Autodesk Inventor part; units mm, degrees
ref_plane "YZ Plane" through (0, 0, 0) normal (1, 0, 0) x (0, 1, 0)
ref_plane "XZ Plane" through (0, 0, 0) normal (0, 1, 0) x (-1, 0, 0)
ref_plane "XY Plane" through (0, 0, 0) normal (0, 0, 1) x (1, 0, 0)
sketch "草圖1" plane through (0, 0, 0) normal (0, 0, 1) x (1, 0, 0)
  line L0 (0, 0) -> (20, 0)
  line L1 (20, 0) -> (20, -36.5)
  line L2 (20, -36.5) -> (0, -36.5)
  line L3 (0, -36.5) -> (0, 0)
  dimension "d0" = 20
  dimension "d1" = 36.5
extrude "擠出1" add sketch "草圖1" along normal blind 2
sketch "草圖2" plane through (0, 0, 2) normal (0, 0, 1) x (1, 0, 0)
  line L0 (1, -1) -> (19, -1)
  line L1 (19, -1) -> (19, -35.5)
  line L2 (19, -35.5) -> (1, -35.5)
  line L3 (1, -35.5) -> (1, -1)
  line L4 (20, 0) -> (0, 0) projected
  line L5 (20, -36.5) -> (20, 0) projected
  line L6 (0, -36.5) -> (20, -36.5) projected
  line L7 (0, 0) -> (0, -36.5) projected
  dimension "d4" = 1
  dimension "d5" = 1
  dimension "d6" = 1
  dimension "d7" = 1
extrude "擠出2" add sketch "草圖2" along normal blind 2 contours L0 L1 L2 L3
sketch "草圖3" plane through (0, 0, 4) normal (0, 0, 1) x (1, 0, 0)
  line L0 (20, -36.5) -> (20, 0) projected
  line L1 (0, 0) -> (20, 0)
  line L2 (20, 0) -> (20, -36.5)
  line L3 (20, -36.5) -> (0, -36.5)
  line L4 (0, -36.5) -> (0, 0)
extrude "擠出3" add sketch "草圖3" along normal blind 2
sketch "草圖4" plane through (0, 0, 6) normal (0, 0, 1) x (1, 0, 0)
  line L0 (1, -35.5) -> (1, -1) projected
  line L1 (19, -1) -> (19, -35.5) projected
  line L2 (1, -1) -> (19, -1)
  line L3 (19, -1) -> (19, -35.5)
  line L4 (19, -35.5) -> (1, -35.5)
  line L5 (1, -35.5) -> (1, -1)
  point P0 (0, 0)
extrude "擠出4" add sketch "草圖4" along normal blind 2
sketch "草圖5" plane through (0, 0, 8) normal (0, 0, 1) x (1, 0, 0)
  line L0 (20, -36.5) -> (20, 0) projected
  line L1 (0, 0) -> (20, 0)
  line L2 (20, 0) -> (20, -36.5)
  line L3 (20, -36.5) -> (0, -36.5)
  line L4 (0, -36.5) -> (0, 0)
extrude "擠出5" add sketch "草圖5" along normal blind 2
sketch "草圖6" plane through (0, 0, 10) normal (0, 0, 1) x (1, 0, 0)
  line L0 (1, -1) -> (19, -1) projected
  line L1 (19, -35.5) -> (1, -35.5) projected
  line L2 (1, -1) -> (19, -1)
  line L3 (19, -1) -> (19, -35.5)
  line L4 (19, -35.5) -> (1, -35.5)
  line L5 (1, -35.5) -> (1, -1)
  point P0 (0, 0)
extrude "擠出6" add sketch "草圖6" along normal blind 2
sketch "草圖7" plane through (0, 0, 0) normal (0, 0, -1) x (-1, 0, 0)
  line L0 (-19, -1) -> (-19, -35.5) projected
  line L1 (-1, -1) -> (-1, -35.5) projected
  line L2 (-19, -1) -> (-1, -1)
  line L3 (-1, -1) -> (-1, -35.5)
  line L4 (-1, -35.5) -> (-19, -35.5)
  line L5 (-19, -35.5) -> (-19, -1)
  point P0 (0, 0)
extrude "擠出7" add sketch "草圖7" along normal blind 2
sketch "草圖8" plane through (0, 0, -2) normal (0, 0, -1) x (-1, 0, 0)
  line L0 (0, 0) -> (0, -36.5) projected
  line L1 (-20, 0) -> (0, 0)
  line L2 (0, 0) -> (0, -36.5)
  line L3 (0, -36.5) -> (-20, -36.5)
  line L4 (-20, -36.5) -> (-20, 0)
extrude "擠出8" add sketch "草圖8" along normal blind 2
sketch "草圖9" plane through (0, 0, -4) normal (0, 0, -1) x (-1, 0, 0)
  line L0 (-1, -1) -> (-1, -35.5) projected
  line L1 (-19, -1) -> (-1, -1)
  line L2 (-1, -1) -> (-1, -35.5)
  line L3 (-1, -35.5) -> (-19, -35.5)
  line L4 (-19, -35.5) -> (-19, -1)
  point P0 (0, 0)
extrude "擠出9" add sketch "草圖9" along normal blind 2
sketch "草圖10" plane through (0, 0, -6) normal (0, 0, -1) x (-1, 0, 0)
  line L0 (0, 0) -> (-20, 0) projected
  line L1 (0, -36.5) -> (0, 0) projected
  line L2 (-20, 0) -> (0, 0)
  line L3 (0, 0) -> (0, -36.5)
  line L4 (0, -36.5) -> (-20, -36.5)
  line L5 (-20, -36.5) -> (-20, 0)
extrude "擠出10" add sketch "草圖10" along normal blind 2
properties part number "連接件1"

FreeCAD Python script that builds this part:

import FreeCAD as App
import Part
import Sketcher

V = App.Vector
Q = App.Units.Quantity

doc = App.newDocument("Part")
body = doc.addObject("PartDesign::Body", "Body")

sketch1 = body.newObject("Sketcher::SketchObject", "Sketch")
sketch1.AttachmentSupport = (doc.getObject("XY_Plane"), [""])
sketch1.MapMode = "FlatFace"
sketch1.addGeometry([
    Part.LineSegment(V(20, 0, 0), V(0, 0, 0)),
    Part.LineSegment(V(0, 0, 0), V(0, -36, 0)),
    Part.LineSegment(V(0, -36, 0), V(20, -36, 0)),
    Part.LineSegment(V(20, -36, 0), V(20, 0, 0)),
], False)
sketch1.addConstraint([
    Sketcher.Constraint("Coincident", 0, 2, 1, 1),
    Sketcher.Constraint("Coincident", 1, 2, 2, 1),
    Sketcher.Constraint("Coincident", 2, 2, 3, 1),
    Sketcher.Constraint("Coincident", 3, 2, 0, 1),
    Sketcher.Constraint("Horizontal", 0),
    Sketcher.Constraint("Vertical", 1),
    Sketcher.Constraint("Horizontal", 2),
    Sketcher.Constraint("Vertical", 3),
    Sketcher.Constraint("Coincident", 0, 2, -1, 1),
    Sketcher.Constraint("DistanceX", 0, 2, 0, 1, Q("20 mm")),
    Sketcher.Constraint("DistanceY", 1, 2, 1, 1, Q("36.5 mm")),
])
pad1 = body.newObject("PartDesign::Pad", "Pad")
pad1.Profile = sketch1
pad1.Length = 2

sketch2 = body.newObject("Sketcher::SketchObject", "Sketch001")
sketch2.AttachmentSupport = (doc.getObject("XY_Plane"), [""])
sketch2.MapMode = "FlatFace"
sketch2.AttachmentOffset = App.Placement(V(0, 0, 2), App.Rotation())
sketch2.addGeometry([
    Part.LineSegment(V(19, -1, 0), V(1, -1, 0)),
    Part.LineSegment(V(1, -1, 0), V(1, -36, 0)),
    Part.LineSegment(V(1, -36, 0), V(19, -36, 0)),
    Part.LineSegment(V(19, -36, 0), V(19, -1, 0)),
], False)
sketch2.addConstraint([
    Sketcher.Constraint("Coincident", 0, 2, 1, 1),
    Sketcher.Constraint("Coincident", 1, 2, 2, 1),
    Sketcher.Constraint("Coincident", 2, 2, 3, 1),
    Sketcher.Constraint("Coincident", 3, 2, 0, 1),
    Sketcher.Constraint("Horizontal", 0),
    Sketcher.Constraint("Vertical", 1),
    Sketcher.Constraint("Horizontal", 2),
    Sketcher.Constraint("Vertical", 3),
    Sketcher.Constraint("DistanceX", -1, 1, 0, 2, Q("1 mm")),
    Sketcher.Constraint("DistanceY", 0, 2, -1, 1, Q("1 mm")),
    Sketcher.Constraint("DistanceX", 0, 2, 0, 1, Q("18 mm")),
    Sketcher.Constraint("DistanceY", 1, 2, 1, 1, Q("34.5 mm")),
])
pad2 = body.newObject("PartDesign::Pad", "Pad001")
pad2.Profile = sketch2
pad2.Length = 2

sketch3 = body.newObject("Sketcher::SketchObject", "Sketch002")
sketch3.AttachmentSupport = (doc.getObject("XY_Plane"), [""])
sketch3.MapMode = "FlatFace"
sketch3.AttachmentOffset = App.Placement(V(0, 0, 4), App.Rotation())
sketch3.addGeometry([
    Part.LineSegment(V(0, -36, 0), V(20, -36, 0)),
    Part.LineSegment(V(20, -36, 0), V(20, 0, 0)),
    Part.LineSegment(V(20, 0, 0), V(0, 0, 0)),
    Part.LineSegment(V(0, 0, 0), V(0, -36, 0)),
], False)
sketch3.addConstraint([
    Sketcher.Constraint("Coincident", 0, 2, 1, 1),
    Sketcher.Constraint("Coincident", 1, 2, 2, 1),
    Sketcher.Constraint("Coincident", 2, 2, 3, 1),
    Sketcher.Constraint("Coincident", 3, 2, 0, 1),
    Sketcher.Constraint("Horizontal", 0),
    Sketcher.Constraint("Vertical", 1),
    Sketcher.Constraint("Horizontal", 2),
    Sketcher.Constraint("Vertical", 3),
    Sketcher.Constraint("Coincident", 2, 2, -1, 1),
    Sketcher.Constraint("DistanceX", 0, 1, 0, 2, Q("20 mm")),
    Sketcher.Constraint("DistanceY", 1, 1, 1, 2, Q("36.5 mm")),
])
pad3 = body.newObject("PartDesign::Pad", "Pad002")
pad3.Profile = sketch3
pad3.Length = 2

sketch4 = body.newObject("Sketcher::SketchObject", "Sketch003")
sketch4.AttachmentSupport = (doc.getObject("XY_Plane"), [""])
sketch4.MapMode = "FlatFace"
sketch4.AttachmentOffset = App.Placement(V(0, 0, 6), App.Rotation())
sketch4.addGeometry([
    Part.LineSegment(V(1, -1, 0), V(1, -36, 0)),
    Part.LineSegment(V(1, -36, 0), V(19, -36, 0)),
    Part.LineSegment(V(19, -36, 0), V(19, -1, 0)),
    Part.LineSegment(V(19, -1, 0), V(1, -1, 0)),
], False)
sketch4.addConstraint([
    Sketcher.Constraint("Coincident", 0, 2, 1, 1),
    Sketcher.Constraint("Coincident", 1, 2, 2, 1),
    Sketcher.Constraint("Coincident", 2, 2, 3, 1),
    Sketcher.Constraint("Coincident", 3, 2, 0, 1),
    Sketcher.Constraint("Vertical", 0),
    Sketcher.Constraint("Horizontal", 1),
    Sketcher.Constraint("Vertical", 2),
    Sketcher.Constraint("Horizontal", 3),
    Sketcher.Constraint("DistanceX", 1, 1, 1, 2, Q("18 mm")),
    Sketcher.Constraint("DistanceY", 0, 2, 0, 1, Q("34.5 mm")),
    Sketcher.Constraint("DistanceX", -1, 1, 0, 2, Q("1 mm")),
    Sketcher.Constraint("DistanceY", 2, 2, -1, 1, Q("1 mm")),
])
pad4 = body.newObject("PartDesign::Pad", "Pad003")
pad4.Profile = sketch4
pad4.Length = 2

sketch5 = body.newObject("Sketcher::SketchObject", "Sketch004")
sketch5.AttachmentSupport = (doc.getObject("XY_Plane"), [""])
sketch5.MapMode = "FlatFace"
sketch5.AttachmentOffset = App.Placement(V(0, 0, 8), App.Rotation())
sketch5.addGeometry([
    Part.LineSegment(V(0, -36, 0), V(20, -36, 0)),
    Part.LineSegment(V(20, -36, 0), V(20, 0, 0)),
    Part.LineSegment(V(20, 0, 0), V(0, 0, 0)),
    Part.LineSegment(V(0, 0, 0), V(0, -36, 0)),
], False)
sketch5.addConstraint([
    Sketcher.Constraint("Coincident", 0, 2, 1, 1),
    Sketcher.Constraint("Coincident", 1, 2, 2, 1),
    Sketcher.Constraint("Coincident", 2, 2, 3, 1),
    Sketcher.Constraint("Coincident", 3, 2, 0, 1),
    Sketcher.Constraint("Horizontal", 0),
    Sketcher.Constraint("Vertical", 1),
    Sketcher.Constraint("Horizontal", 2),
    Sketcher.Constraint("Vertical", 3),
    Sketcher.Constraint("Coincident", 2, 2, -1, 1),
    Sketcher.Constraint("DistanceX", 0, 1, 0, 2, Q("20 mm")),
    Sketcher.Constraint("DistanceY", 1, 1, 1, 2, Q("36.5 mm")),
])
pad5 = body.newObject("PartDesign::Pad", "Pad004")
pad5.Profile = sketch5
pad5.Length = 2

sketch6 = body.newObject("Sketcher::SketchObject", "Sketch005")
sketch6.AttachmentSupport = (doc.getObject("XY_Plane"), [""])
sketch6.MapMode = "FlatFace"
sketch6.AttachmentOffset = App.Placement(V(0, 0, 10), App.Rotation())
sketch6.addGeometry([
    Part.LineSegment(V(19, -1, 0), V(1, -1, 0)),
    Part.LineSegment(V(1, -1, 0), V(1, -36, 0)),
    Part.LineSegment(V(1, -36, 0), V(19, -36, 0)),
    Part.LineSegment(V(19, -36, 0), V(19, -1, 0)),
], False)
sketch6.addConstraint([
    Sketcher.Constraint("Coincident", 0, 2, 1, 1),
    Sketcher.Constraint("Coincident", 1, 2, 2, 1),
    Sketcher.Constraint("Coincident", 2, 2, 3, 1),
    Sketcher.Constraint("Coincident", 3, 2, 0, 1),
    Sketcher.Constraint("Horizontal", 0),
    Sketcher.Constraint("Vertical", 1),
    Sketcher.Constraint("Horizontal", 2),
    Sketcher.Constraint("Vertical", 3),
    Sketcher.Constraint("DistanceX", 0, 2, 0, 1, Q("18 mm")),
    Sketcher.Constraint("DistanceY", 1, 2, 1, 1, Q("34.5 mm")),
    Sketcher.Constraint("DistanceX", -1, 1, 0, 2, Q("1 mm")),
    Sketcher.Constraint("DistanceY", 0, 2, -1, 1, Q("1 mm")),
])
pad6 = body.newObject("PartDesign::Pad", "Pad005")
pad6.Profile = sketch6
pad6.Length = 2

sketch7 = body.newObject("Sketcher::SketchObject", "Sketch006")
sketch7.AttachmentSupport = (doc.getObject("XY_Plane"), [""])
sketch7.MapMode = "FlatFace"
sketch7.addGeometry([
    Part.LineSegment(V(1, -1, 0), V(19, -1, 0)),
    Part.LineSegment(V(19, -1, 0), V(19, -36, 0)),
    Part.LineSegment(V(19, -36, 0), V(1, -36, 0)),
    Part.LineSegment(V(1, -36, 0), V(1, -1, 0)),
], False)
sketch7.addConstraint([
    Sketcher.Constraint("Coincident", 0, 2, 1, 1),
    Sketcher.Constraint("Coincident", 1, 2, 2, 1),
    Sketcher.Constraint("Coincident", 2, 2, 3, 1),
    Sketcher.Constraint("Coincident", 3, 2, 0, 1),
    Sketcher.Constraint("Horizontal", 0),
    Sketcher.Constraint("Vertical", 1),
    Sketcher.Constraint("Horizontal", 2),
    Sketcher.Constraint("Vertical", 3),
    Sketcher.Constraint("DistanceX", 0, 1, 0, 2, Q("18 mm")),
    Sketcher.Constraint("DistanceY", 1, 2, 1, 1, Q("34.5 mm")),
    Sketcher.Constraint("DistanceX", -1, 1, 0, 2, Q("19 mm")),
    Sketcher.Constraint("DistanceY", 0, 2, -1, 1, Q("1 mm")),
])
pad7 = body.newObject("PartDesign::Pad", "Pad006")
pad7.Profile = sketch7
pad7.Length = 2
pad7.Reversed = True

sketch8 = body.newObject("Sketcher::SketchObject", "Sketch007")
sketch8.AttachmentSupport = (doc.getObject("XY_Plane"), [""])
sketch8.MapMode = "FlatFace"
sketch8.AttachmentOffset = App.Placement(V(0, 0, -2), App.Rotation())
sketch8.addGeometry([
    Part.LineSegment(V(0, -36, 0), V(0, 0, 0)),
    Part.LineSegment(V(0, 0, 0), V(20, 0, 0)),
    Part.LineSegment(V(20, 0, 0), V(20, -36, 0)),
    Part.LineSegment(V(20, -36, 0), V(0, -36, 0)),
], False)
sketch8.addConstraint([
    Sketcher.Constraint("Coincident", 0, 2, 1, 1),
    Sketcher.Constraint("Coincident", 1, 2, 2, 1),
    Sketcher.Constraint("Coincident", 2, 2, 3, 1),
    Sketcher.Constraint("Coincident", 3, 2, 0, 1),
    Sketcher.Constraint("Vertical", 0),
    Sketcher.Constraint("Horizontal", 1),
    Sketcher.Constraint("Vertical", 2),
    Sketcher.Constraint("Horizontal", 3),
    Sketcher.Constraint("Coincident", 0, 2, -1, 1),
    Sketcher.Constraint("DistanceX", 1, 1, 1, 2, Q("20 mm")),
    Sketcher.Constraint("DistanceY", 0, 1, 0, 2, Q("36.5 mm")),
])
pad8 = body.newObject("PartDesign::Pad", "Pad007")
pad8.Profile = sketch8
pad8.Length = 2
pad8.Reversed = True

sketch9 = body.newObject("Sketcher::SketchObject", "Sketch008")
sketch9.AttachmentSupport = (doc.getObject("XY_Plane"), [""])
sketch9.MapMode = "FlatFace"
sketch9.AttachmentOffset = App.Placement(V(0, 0, -4), App.Rotation())
sketch9.addGeometry([
    Part.LineSegment(V(1, -36, 0), V(1, -1, 0)),
    Part.LineSegment(V(1, -1, 0), V(19, -1, 0)),
    Part.LineSegment(V(19, -1, 0), V(19, -36, 0)),
    Part.LineSegment(V(19, -36, 0), V(1, -36, 0)),
], False)
sketch9.addConstraint([
    Sketcher.Constraint("Coincident", 0, 2, 1, 1),
    Sketcher.Constraint("Coincident", 1, 2, 2, 1),
    Sketcher.Constraint("Coincident", 2, 2, 3, 1),
    Sketcher.Constraint("Coincident", 3, 2, 0, 1),
    Sketcher.Constraint("Vertical", 0),
    Sketcher.Constraint("Horizontal", 1),
    Sketcher.Constraint("Vertical", 2),
    Sketcher.Constraint("Horizontal", 3),
    Sketcher.Constraint("DistanceX", 1, 1, 1, 2, Q("18 mm")),
    Sketcher.Constraint("DistanceY", 0, 1, 0, 2, Q("34.5 mm")),
    Sketcher.Constraint("DistanceX", -1, 1, 0, 2, Q("1 mm")),
    Sketcher.Constraint("DistanceY", 0, 2, -1, 1, Q("1 mm")),
])
pad9 = body.newObject("PartDesign::Pad", "Pad008")
pad9.Profile = sketch9
pad9.Length = 2
pad9.Reversed = True

sketch10 = body.newObject("Sketcher::SketchObject", "Sketch009")
sketch10.AttachmentSupport = (doc.getObject("XY_Plane"), [""])
sketch10.MapMode = "FlatFace"
sketch10.AttachmentOffset = App.Placement(V(0, 0, -6), App.Rotation())
sketch10.addGeometry([
    Part.LineSegment(V(0, -36, 0), V(0, 0, 0)),
    Part.LineSegment(V(0, 0, 0), V(20, 0, 0)),
    Part.LineSegment(V(20, 0, 0), V(20, -36, 0)),
    Part.LineSegment(V(20, -36, 0), V(0, -36, 0)),
], False)
sketch10.addConstraint([
    Sketcher.Constraint("Coincident", 0, 2, 1, 1),
    Sketcher.Constraint("Coincident", 1, 2, 2, 1),
    Sketcher.Constraint("Coincident", 2, 2, 3, 1),
    Sketcher.Constraint("Coincident", 3, 2, 0, 1),
    Sketcher.Constraint("Vertical", 0),
    Sketcher.Constraint("Horizontal", 1),
    Sketcher.Constraint("Vertical", 2),
    Sketcher.Constraint("Horizontal", 3),
    Sketcher.Constraint("Coincident", 0, 2, -1, 1),
    Sketcher.Constraint("DistanceX", 1, 1, 1, 2, Q("20 mm")),
    Sketcher.Constraint("DistanceY", 0, 1, 0, 2, Q("36.5 mm")),
])
pad10 = body.newObject("PartDesign::Pad", "Pad009")
pad10.Profile = sketch10
pad10.Length = 2
pad10.Reversed = True

doc.recompute()
